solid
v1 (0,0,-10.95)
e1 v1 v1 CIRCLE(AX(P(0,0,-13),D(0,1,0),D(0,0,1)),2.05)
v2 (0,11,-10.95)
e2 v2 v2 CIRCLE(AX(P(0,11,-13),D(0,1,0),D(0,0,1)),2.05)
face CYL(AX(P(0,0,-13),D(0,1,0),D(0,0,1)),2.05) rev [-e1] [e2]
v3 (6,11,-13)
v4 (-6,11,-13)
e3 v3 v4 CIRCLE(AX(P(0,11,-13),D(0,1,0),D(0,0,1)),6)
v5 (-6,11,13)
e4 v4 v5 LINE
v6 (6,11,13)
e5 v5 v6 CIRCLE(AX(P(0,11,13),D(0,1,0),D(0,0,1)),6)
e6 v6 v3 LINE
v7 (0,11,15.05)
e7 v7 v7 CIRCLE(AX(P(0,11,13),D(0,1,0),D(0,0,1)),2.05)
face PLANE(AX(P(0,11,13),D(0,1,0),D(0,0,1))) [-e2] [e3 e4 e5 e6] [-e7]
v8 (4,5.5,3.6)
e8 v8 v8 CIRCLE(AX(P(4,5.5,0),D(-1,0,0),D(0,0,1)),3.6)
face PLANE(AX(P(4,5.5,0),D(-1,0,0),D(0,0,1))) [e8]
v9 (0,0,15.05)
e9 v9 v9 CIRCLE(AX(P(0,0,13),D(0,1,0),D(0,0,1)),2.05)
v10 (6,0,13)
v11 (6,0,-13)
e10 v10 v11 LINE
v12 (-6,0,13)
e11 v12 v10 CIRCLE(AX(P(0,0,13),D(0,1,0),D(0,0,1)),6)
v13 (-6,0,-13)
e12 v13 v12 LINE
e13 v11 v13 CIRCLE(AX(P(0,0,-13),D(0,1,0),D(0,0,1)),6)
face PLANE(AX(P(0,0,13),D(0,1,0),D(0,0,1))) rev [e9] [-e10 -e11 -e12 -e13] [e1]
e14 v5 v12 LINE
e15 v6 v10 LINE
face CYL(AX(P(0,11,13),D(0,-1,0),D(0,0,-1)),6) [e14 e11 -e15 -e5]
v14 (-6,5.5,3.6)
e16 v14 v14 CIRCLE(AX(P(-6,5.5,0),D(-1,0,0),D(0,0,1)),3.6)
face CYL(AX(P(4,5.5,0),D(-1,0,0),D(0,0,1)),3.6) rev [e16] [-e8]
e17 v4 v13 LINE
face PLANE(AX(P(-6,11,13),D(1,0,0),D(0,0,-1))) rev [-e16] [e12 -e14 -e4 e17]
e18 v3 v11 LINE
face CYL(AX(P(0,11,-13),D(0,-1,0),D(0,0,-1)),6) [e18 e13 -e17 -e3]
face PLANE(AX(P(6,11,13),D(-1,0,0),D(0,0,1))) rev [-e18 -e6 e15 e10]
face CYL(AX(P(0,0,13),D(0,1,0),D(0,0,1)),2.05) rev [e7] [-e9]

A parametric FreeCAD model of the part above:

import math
import FreeCAD as App
import Part
import Sketcher

V = App.Vector
Q = App.Units.Quantity

doc = App.newDocument("Part")
body = doc.addObject("PartDesign::Body", "Body")

sketch1 = doc.addObject("Sketcher::SketchObject", "Sketch")
body.addObject(sketch1)
sketch1.AttachmentSupport = (doc.XZ_Plane, [""])
sketch1.MapMode = "FlatFace"
sketch1.addGeometry([
    Part.LineSegment(V(-6, -13, 0), V(-6, 13, 0)),
    Part.ArcOfCircle(Part.Circle(V(0, 13, 0), V(0, 0, 1), 6), math.radians(0), math.radians(180)),
    Part.LineSegment(V(6, 13, 0), V(6, -13, 0)),
    Part.ArcOfCircle(Part.Circle(V(0, -13, 0), V(0, 0, 1), 6), math.radians(180), math.radians(360)),
], False)
sketch1.addConstraint([
    Sketcher.Constraint("Tangent", 0, 2, 1, 2),
    Sketcher.Constraint("Tangent", 1, 1, 2, 1),
    Sketcher.Constraint("Tangent", 2, 2, 3, 2),
    Sketcher.Constraint("Tangent", 3, 1, 0, 1),
    Sketcher.Constraint("Vertical", 0),
    Sketcher.Constraint("Vertical", 2),
    Sketcher.Constraint("Symmetric", 1, 3, 3, 3, -1, 1),
    Sketcher.Constraint("Radius", 1, Q("6 mm")),
    Sketcher.Constraint("DistanceY", 0, 1, 0, 2, Q("26 mm")),
])
pad1 = doc.addObject("PartDesign::Pad", "Pad")
body.addObject(pad1)
pad1.Profile = sketch1
pad1.Length = 11
pad1.Reversed = True

sketch2 = doc.addObject("Sketcher::SketchObject", "Sketch001")
body.addObject(sketch2)
sketch2.AttachmentSupport = (doc.XZ_Plane, [""])
sketch2.MapMode = "FlatFace"
sketch2.AttachmentOffset = App.Placement(V(0, 0, -11), App.Rotation())
sketch2.addGeometry([
    Part.Circle(V(0, -13, 0), V(0, 0, 1), 2.05),
    Part.Circle(V(0, 13, 0), V(0, 0, 1), 2.05),
], False)
sketch2.addConstraint([
    Sketcher.Constraint("Equal", 0, 1),
    Sketcher.Constraint("Symmetric", 0, 3, 1, 3, -1, 1),
    Sketcher.Constraint("PointOnObject", 0, 3, -2),
    Sketcher.Constraint("Diameter", 0, Q("4.1 mm")),
    Sketcher.Constraint("DistanceY", 0, 3, -1, 1, Q("13 mm")),
])
pocket1 = doc.addObject("PartDesign::Pocket", "Pocket")
body.addObject(pocket1)
pocket1.Profile = sketch2
pocket1.Type = "ThroughAll"
pocket1.Reversed = True

sketch3 = doc.addObject("Sketcher::SketchObject", "Sketch002")
body.addObject(sketch3)
sketch3.AttachmentSupport = (doc.YZ_Plane, [""])
sketch3.MapMode = "FlatFace"
sketch3.AttachmentOffset = App.Placement(V(0, 0, -6), App.Rotation())
sketch3.addGeometry(Part.Circle(V(5.5, 0, 0), V(0, 0, 1), 3.6), False)
sketch3.addConstraint([
    Sketcher.Constraint("PointOnObject", 0, 3, -1),
    Sketcher.Constraint("Diameter", 0, Q("7.2 mm")),
    Sketcher.Constraint("DistanceX", -1, 1, 0, 3, Q("5.5 mm")),
])
pocket2 = doc.addObject("PartDesign::Pocket", "Pocket001")
body.addObject(pocket2)
pocket2.Profile = sketch3
pocket2.Length = 10
pocket2.Reversed = True

doc.recompute()
